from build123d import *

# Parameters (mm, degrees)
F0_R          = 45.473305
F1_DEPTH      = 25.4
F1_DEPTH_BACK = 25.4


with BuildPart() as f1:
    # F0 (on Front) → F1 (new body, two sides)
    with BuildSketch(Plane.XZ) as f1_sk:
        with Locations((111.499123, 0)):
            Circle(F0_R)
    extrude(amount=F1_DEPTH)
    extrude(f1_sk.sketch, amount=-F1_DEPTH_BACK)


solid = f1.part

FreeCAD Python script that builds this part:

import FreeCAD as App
import Part
import Sketcher

V = App.Vector
Q = App.Units.Quantity

doc = App.newDocument("Part")
params = doc.addObject("Spreadsheet::Sheet", "Params")
for row, (alias, value) in enumerate([
    ("pad1_length", "1 in"),
    ("pad1_length2", "1 in"),
], start=1):
    params.set(f"A{row}", alias)
    params.set(f"B{row}", "=" + value)
    params.setAlias(f"B{row}", alias)

body = doc.addObject("PartDesign::Body", "Body")

sketch1 = doc.addObject("Sketcher::SketchObject", "Sketch")
body.addObject(sketch1)
sketch1.AttachmentSupport = (doc.XZ_Plane, [""])
sketch1.MapMode = "FlatFace"
sketch1.addGeometry(Part.Circle(V(111.499123, 0, 0), V(0, 0, 1), 45.473305), False)
sketch1.addConstraint(Sketcher.Constraint("PointOnObject", 0, 3, -1))
sketch1.addConstraint(Sketcher.Constraint("Diameter", 0, Q("90.94661 mm")))
sketch1.addConstraint(Sketcher.Constraint("DistanceX", -1, 1, 0, 3, Q("111.499123 mm")))
pad1 = doc.addObject("PartDesign::Pad", "Pad")
body.addObject(pad1)
pad1.Profile = sketch1
pad1.Type = "TwoLengths"
pad1.setExpression("Length", "Params.pad1_length")
pad1.setExpression("Length2", "Params.pad1_length2")

doc.recompute()
